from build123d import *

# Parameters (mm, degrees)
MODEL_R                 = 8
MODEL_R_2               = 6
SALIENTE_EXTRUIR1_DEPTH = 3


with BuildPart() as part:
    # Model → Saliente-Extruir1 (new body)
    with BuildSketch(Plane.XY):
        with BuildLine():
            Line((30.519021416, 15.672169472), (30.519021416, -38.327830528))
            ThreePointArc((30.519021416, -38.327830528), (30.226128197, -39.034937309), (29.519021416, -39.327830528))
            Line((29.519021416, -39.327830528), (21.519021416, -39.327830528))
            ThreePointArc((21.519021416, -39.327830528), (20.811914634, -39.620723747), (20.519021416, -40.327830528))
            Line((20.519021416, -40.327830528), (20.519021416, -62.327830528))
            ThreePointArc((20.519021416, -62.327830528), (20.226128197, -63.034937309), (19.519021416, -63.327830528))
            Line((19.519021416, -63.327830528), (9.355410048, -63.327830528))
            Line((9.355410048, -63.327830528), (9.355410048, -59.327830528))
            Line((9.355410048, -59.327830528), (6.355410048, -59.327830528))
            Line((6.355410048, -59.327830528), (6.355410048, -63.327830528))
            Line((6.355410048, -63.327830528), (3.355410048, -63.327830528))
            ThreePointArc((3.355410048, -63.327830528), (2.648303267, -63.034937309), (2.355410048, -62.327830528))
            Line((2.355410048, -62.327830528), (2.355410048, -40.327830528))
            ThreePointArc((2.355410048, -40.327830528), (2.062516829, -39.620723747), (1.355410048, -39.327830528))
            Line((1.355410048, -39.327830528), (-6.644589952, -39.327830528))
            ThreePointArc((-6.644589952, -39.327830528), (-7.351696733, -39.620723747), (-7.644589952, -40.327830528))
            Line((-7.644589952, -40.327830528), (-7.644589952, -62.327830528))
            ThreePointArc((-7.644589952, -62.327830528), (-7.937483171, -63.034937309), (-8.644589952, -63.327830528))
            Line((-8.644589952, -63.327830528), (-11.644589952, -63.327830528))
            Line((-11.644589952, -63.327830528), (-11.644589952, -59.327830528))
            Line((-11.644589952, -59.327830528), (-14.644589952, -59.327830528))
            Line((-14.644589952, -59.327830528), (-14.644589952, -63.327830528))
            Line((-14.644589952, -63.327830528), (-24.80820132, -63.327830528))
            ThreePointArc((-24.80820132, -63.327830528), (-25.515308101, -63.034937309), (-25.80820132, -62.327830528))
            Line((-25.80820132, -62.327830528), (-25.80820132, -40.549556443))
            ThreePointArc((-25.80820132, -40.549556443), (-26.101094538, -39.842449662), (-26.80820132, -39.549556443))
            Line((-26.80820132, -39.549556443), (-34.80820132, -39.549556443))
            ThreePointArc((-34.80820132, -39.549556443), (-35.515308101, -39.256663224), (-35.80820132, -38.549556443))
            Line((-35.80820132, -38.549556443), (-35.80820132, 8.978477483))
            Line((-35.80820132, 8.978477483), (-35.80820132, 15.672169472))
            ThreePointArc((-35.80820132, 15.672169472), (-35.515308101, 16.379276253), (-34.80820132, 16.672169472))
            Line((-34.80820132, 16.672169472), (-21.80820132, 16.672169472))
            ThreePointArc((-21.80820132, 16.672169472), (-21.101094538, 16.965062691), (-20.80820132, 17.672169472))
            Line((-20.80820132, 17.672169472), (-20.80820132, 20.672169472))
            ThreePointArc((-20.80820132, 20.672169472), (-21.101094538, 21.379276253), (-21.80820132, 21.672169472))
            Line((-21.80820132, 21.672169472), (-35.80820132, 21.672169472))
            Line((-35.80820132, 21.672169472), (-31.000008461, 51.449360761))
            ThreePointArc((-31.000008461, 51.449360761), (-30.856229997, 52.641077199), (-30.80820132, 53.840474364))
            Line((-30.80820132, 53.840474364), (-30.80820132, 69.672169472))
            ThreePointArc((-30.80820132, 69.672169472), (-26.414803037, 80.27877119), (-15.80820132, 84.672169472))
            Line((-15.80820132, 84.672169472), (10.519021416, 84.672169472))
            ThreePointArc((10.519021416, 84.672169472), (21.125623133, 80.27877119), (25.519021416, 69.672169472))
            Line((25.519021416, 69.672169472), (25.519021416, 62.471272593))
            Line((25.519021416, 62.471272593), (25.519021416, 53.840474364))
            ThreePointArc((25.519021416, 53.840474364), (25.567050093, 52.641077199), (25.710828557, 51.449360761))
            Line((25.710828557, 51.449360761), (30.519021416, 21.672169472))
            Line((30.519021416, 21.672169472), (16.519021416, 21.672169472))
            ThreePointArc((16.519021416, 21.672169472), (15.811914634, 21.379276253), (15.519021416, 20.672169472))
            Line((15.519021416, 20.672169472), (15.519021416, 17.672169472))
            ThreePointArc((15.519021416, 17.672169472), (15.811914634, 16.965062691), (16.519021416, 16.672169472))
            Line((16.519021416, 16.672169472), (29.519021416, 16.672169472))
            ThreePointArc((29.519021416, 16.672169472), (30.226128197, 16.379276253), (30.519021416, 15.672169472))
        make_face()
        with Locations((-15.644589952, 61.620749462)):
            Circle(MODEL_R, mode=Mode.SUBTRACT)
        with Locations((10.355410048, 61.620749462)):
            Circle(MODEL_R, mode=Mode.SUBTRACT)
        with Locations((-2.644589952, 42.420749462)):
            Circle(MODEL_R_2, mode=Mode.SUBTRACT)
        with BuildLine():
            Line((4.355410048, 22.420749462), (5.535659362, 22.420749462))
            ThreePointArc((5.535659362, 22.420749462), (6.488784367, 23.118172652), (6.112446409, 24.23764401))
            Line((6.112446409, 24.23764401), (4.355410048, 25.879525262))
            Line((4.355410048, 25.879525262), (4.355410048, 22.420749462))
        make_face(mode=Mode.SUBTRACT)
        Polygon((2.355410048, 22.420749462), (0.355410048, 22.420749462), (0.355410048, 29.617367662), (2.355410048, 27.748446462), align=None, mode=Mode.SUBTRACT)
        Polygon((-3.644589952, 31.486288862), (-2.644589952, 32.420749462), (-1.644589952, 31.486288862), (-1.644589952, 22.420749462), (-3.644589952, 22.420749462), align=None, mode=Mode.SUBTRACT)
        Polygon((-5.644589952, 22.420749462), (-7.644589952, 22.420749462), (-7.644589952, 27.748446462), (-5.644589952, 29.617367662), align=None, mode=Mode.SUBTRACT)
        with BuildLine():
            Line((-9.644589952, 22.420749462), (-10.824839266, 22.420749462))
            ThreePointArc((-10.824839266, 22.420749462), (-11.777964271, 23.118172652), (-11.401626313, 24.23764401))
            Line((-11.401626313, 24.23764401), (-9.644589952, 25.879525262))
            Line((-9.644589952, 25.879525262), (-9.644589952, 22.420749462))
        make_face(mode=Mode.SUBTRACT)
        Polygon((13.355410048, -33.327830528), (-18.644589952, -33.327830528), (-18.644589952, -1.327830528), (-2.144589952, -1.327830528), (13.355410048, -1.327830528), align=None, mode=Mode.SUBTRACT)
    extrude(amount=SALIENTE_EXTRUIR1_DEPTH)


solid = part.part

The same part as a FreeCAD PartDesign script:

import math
import FreeCAD as App
import Part
import Sketcher
from FreeCAD import Vector
Q = App.Units.Quantity


def add_polygon(sketch, points):
    """Adds a closed chain of lines whose ends are joined by coincident constraints."""
    first, n = sketch.GeometryCount, len(points)
    for a, b in zip(points, points[1:] + points[:1]):
        sketch.addGeometry(Part.LineSegment(App.Vector(*a, 0), App.Vector(*b, 0)), False)
    for i in range(n):
        sketch.addConstraint(Sketcher.Constraint("Coincident", first + i, 2, first + (i + 1) % n, 1))

doc = App.newDocument("Part")
body = doc.addObject("PartDesign::Body", "Body")

# Sketch on XY plane
sketch1 = body.newObject("Sketcher::SketchObject", "Sketch")
sketch1.AttachmentSupport = (doc.getObject("XY_Plane"), [""])
sketch1.MapMode = "FlatFace"
sketch1.addGeometry(Part.LineSegment(Vector(30.5, -38.3, 0), Vector(30.5, 15.7, 0)), False)  # 0
sketch1.addGeometry(Part.ArcOfCircle(Part.Circle(Vector(29.5, 15.7, 0), Vector(0, 0, 1), 1), math.radians(0), math.radians(90)), False)  # 1
sketch1.addGeometry(Part.LineSegment(Vector(29.5, 16.7, 0), Vector(16.5, 16.7, 0)), False)  # 2
sketch1.addGeometry(Part.ArcOfCircle(Part.Circle(Vector(16.5, 17.7, 0), Vector(0, 0, 1), 1), math.radians(180), math.radians(270)), False)  # 3
sketch1.addGeometry(Part.LineSegment(Vector(15.5, 17.7, 0), Vector(15.5, 20.7, 0)), False)  # 4
sketch1.addGeometry(Part.ArcOfCircle(Part.Circle(Vector(16.5, 20.7, 0), Vector(0, 0, 1), 1), math.radians(90), math.radians(180)), False)  # 5
sketch1.addGeometry(Part.LineSegment(Vector(16.5, 21.7, 0), Vector(30.5, 21.7, 0)), False)  # 6
sketch1.addGeometry(Part.LineSegment(Vector(30.5, 21.7, 0), Vector(25.7, 51.4, 0)), False)  # 7
sketch1.addGeometry(Part.ArcOfCircle(Part.Circle(Vector(40.5, 53.8, 0), Vector(0, 0, 1), 15), math.radians(180), math.radians(189.17)), False)  # 8
sketch1.addGeometry(Part.LineSegment(Vector(25.5, 53.8, 0), Vector(25.5, 69.7, 0)), False)  # 9
sketch1.addGeometry(Part.ArcOfCircle(Part.Circle(Vector(10.5, 69.7, 0), Vector(0, 0, 1), 15), math.radians(0), math.radians(90)), False)  # 10
sketch1.addGeometry(Part.LineSegment(Vector(10.5, 84.7, 0), Vector(-15.8, 84.7, 0)), False)  # 11
sketch1.addGeometry(Part.ArcOfCircle(Part.Circle(Vector(-15.8, 69.7, 0), Vector(0, 0, 1), 15), math.radians(90), math.radians(180)), False)  # 12
sketch1.addGeometry(Part.LineSegment(Vector(-30.8, 69.7, 0), Vector(-30.8, 53.8, 0)), False)  # 13
sketch1.addGeometry(Part.ArcOfCircle(Part.Circle(Vector(-45.8, 53.8, 0), Vector(0, 0, 1), 15), math.radians(-9.17), math.radians(0)), False)  # 14
sketch1.addGeometry(Part.LineSegment(Vector(-31, 51.4, 0), Vector(-35.8, 21.7, 0)), False)  # 15
sketch1.addGeometry(Part.LineSegment(Vector(-35.8, 21.7, 0), Vector(-21.8, 21.7, 0)), False)  # 16
sketch1.addGeometry(Part.ArcOfCircle(Part.Circle(Vector(-21.8, 20.7, 0), Vector(0, 0, 1), 1), math.radians(0), math.radians(90)), False)  # 17
sketch1.addGeometry(Part.LineSegment(Vector(-20.8, 20.7, 0), Vector(-20.8, 17.7, 0)), False)  # 18
sketch1.addGeometry(Part.ArcOfCircle(Part.Circle(Vector(-21.8, 17.7, 0), Vector(0, 0, 1), 1), math.radians(-90), math.radians(0)), False)  # 19
sketch1.addGeometry(Part.LineSegment(Vector(-21.8, 16.7, 0), Vector(-34.8, 16.7, 0)), False)  # 20
sketch1.addGeometry(Part.ArcOfCircle(Part.Circle(Vector(-34.8, 15.7, 0), Vector(0, 0, 1), 1), math.radians(90), math.radians(180)), False)  # 21
sketch1.addGeometry(Part.LineSegment(Vector(-35.8, 15.7, 0), Vector(-35.8, -38.5, 0)), False)  # 22
sketch1.addGeometry(Part.ArcOfCircle(Part.Circle(Vector(-34.8, -38.5, 0), Vector(0, 0, 1), 1), math.radians(-180), math.radians(-90)), False)  # 23
sketch1.addGeometry(Part.LineSegment(Vector(-34.8, -39.5, 0), Vector(-26.8, -39.5, 0)), False)  # 24
sketch1.addGeometry(Part.ArcOfCircle(Part.Circle(Vector(-26.8, -40.5, 0), Vector(0, 0, 1), 1), math.radians(0), math.radians(90)), False)  # 25
sketch1.addGeometry(Part.LineSegment(Vector(-25.8, -40.5, 0), Vector(-25.8, -62.3, 0)), False)  # 26
sketch1.addGeometry(Part.ArcOfCircle(Part.Circle(Vector(-24.8, -62.3, 0), Vector(0, 0, 1), 1), math.radians(-180), math.radians(-90)), False)  # 27
sketch1.addGeometry(Part.LineSegment(Vector(-24.8, -63.3, 0), Vector(-14.6, -63.3, 0)), False)  # 28
sketch1.addGeometry(Part.LineSegment(Vector(-14.6, -63.3, 0), Vector(-14.6, -59.3, 0)), False)  # 29
sketch1.addGeometry(Part.LineSegment(Vector(-14.6, -59.3, 0), Vector(-11.6, -59.3, 0)), False)  # 30
sketch1.addGeometry(Part.LineSegment(Vector(-11.6, -59.3, 0), Vector(-11.6, -63.3, 0)), False)  # 31
sketch1.addGeometry(Part.LineSegment(Vector(-11.6, -63.3, 0), Vector(-8.6, -63.3, 0)), False)  # 32
sketch1.addGeometry(Part.ArcOfCircle(Part.Circle(Vector(-8.6, -62.3, 0), Vector(0, 0, 1), 1), math.radians(-90), math.radians(0)), False)  # 33
sketch1.addGeometry(Part.LineSegment(Vector(-7.6, -62.3, 0), Vector(-7.6, -40.3, 0)), False)  # 34
sketch1.addGeometry(Part.ArcOfCircle(Part.Circle(Vector(-6.6, -40.3, 0), Vector(0, 0, 1), 1), math.radians(90), math.radians(180)), False)  # 35
sketch1.addGeometry(Part.LineSegment(Vector(-6.6, -39.3, 0), Vector(1.4, -39.3, 0)), False)  # 36
sketch1.addGeometry(Part.ArcOfCircle(Part.Circle(Vector(1.4, -40.3, 0), Vector(0, 0, 1), 1), math.radians(0), math.radians(90)), False)  # 37
sketch1.addGeometry(Part.LineSegment(Vector(2.4, -40.3, 0), Vector(2.4, -62.3, 0)), False)  # 38
sketch1.addGeometry(Part.ArcOfCircle(Part.Circle(Vector(3.4, -62.3, 0), Vector(0, 0, 1), 1), math.radians(-180), math.radians(-90)), False)  # 39
sketch1.addGeometry(Part.LineSegment(Vector(3.4, -63.3, 0), Vector(6.4, -63.3, 0)), False)  # 40
sketch1.addGeometry(Part.LineSegment(Vector(6.4, -63.3, 0), Vector(6.4, -59.3, 0)), False)  # 41
sketch1.addGeometry(Part.LineSegment(Vector(6.4, -59.3, 0), Vector(9.4, -59.3, 0)), False)  # 42
sketch1.addGeometry(Part.LineSegment(Vector(9.4, -59.3, 0), Vector(9.4, -63.3, 0)), False)  # 43
sketch1.addGeometry(Part.LineSegment(Vector(9.4, -63.3, 0), Vector(19.5, -63.3, 0)), False)  # 44
sketch1.addGeometry(Part.ArcOfCircle(Part.Circle(Vector(19.5, -62.3, 0), Vector(0, 0, 1), 1), math.radians(-90), math.radians(0)), False)  # 45
sketch1.addGeometry(Part.LineSegment(Vector(20.5, -62.3, 0), Vector(20.5, -40.3, 0)), False)  # 46
sketch1.addGeometry(Part.ArcOfCircle(Part.Circle(Vector(21.5, -40.3, 0), Vector(0, 0, 1), 1), math.radians(90), math.radians(180)), False)  # 47
sketch1.addGeometry(Part.LineSegment(Vector(21.5, -39.3, 0), Vector(29.5, -39.3, 0)), False)  # 48
sketch1.addGeometry(Part.ArcOfCircle(Part.Circle(Vector(29.5, -38.3, 0), Vector(0, 0, 1), 1), math.radians(-90), math.radians(0)), False)  # 49
add_polygon(sketch1, [(13.4, -33.3), (-18.6, -33.3), (-18.6, -1.3), (13.4, -1.3)])  # lines 50-53
sketch1.addGeometry(Part.LineSegment(Vector(4.4, 22.4, 0), Vector(4.4, 25.9, 0)), False)  # 54
sketch1.addGeometry(Part.LineSegment(Vector(4.4, 25.9, 0), Vector(6.1, 24.2, 0)), False)  # 55
sketch1.addGeometry(Part.ArcOfCircle(Part.Circle(Vector(5.5, 23.4, 0), Vector(0, 0, 1), 1), math.radians(-90), math.radians(55)), False)  # 56
sketch1.addGeometry(Part.LineSegment(Vector(5.5, 22.4, 0), Vector(4.4, 22.4, 0)), False)  # 57
add_polygon(sketch1, [(2.4, 22.4), (0.4, 22.4), (0.4, 29.6), (2.4, 27.7)])  # lines 58-61
sketch1.addGeometry(Part.Circle(Vector(10.4, 61.6, 0), Vector(0, 0, 1), 8), False)  # 62
add_polygon(sketch1, [(-3.6, 31.5), (-2.6, 32.4), (-1.6, 31.5), (-1.6, 22.4), (-3.6, 22.4)])  # lines 63-67
add_polygon(sketch1, [(-5.6, 22.4), (-7.6, 22.4), (-7.6, 27.7), (-5.6, 29.6)])  # lines 68-71
sketch1.addGeometry(Part.LineSegment(Vector(-9.6, 22.4, 0), Vector(-10.8, 22.4, 0)), False)  # 72
sketch1.addGeometry(Part.ArcOfCircle(Part.Circle(Vector(-10.8, 23.4, 0), Vector(0, 0, 1), 1), math.radians(125), math.radians(270)), False)  # 73
sketch1.addGeometry(Part.LineSegment(Vector(-11.4, 24.2, 0), Vector(-9.6, 25.9, 0)), False)  # 74
sketch1.addGeometry(Part.LineSegment(Vector(-9.6, 25.9, 0), Vector(-9.6, 22.4, 0)), False)  # 75
sketch1.addGeometry(Part.Circle(Vector(-2.6, 42.4, 0), Vector(0, 0, 1), 6), False)  # 76
sketch1.addGeometry(Part.Circle(Vector(-15.6, 61.6, 0), Vector(0, 0, 1), 8), False)  # 77
sketch1.addConstraint([
    Sketcher.Constraint("Tangent", 0, 2, 1, 1),
    Sketcher.Constraint("Tangent", 1, 2, 2, 1),
    Sketcher.Constraint("Tangent", 2, 2, 3, 2),
    Sketcher.Constraint("Tangent", 3, 1, 4, 1),
    Sketcher.Constraint("Tangent", 4, 2, 5, 2),
    Sketcher.Constraint("Tangent", 5, 1, 6, 1),
    Sketcher.Constraint("Coincident", 6, 2, 7, 1),
    Sketcher.Constraint("Tangent", 7, 2, 8, 2),
    Sketcher.Constraint("Tangent", 8, 1, 9, 1),
    Sketcher.Constraint("Tangent", 9, 2, 10, 1),
    Sketcher.Constraint("Tangent", 10, 2, 11, 1),
    Sketcher.Constraint("Tangent", 11, 2, 12, 1),
    Sketcher.Constraint("Tangent", 12, 2, 13, 1),
    Sketcher.Constraint("Tangent", 13, 2, 14, 2),
    Sketcher.Constraint("Tangent", 14, 1, 15, 1),
    Sketcher.Constraint("Coincident", 15, 2, 16, 1),
    Sketcher.Constraint("Tangent", 16, 2, 17, 2),
    Sketcher.Constraint("Tangent", 17, 1, 18, 1),
    Sketcher.Constraint("Tangent", 18, 2, 19, 2),
    Sketcher.Constraint("Tangent", 19, 1, 20, 1),
    Sketcher.Constraint("Tangent", 20, 2, 21, 1),
    Sketcher.Constraint("Tangent", 21, 2, 22, 1),
    Sketcher.Constraint("Tangent", 22, 2, 23, 1),
    Sketcher.Constraint("Tangent", 23, 2, 24, 1),
    Sketcher.Constraint("Tangent", 24, 2, 25, 2),
    Sketcher.Constraint("Tangent", 25, 1, 26, 1),
    Sketcher.Constraint("Tangent", 26, 2, 27, 1),
    Sketcher.Constraint("Tangent", 27, 2, 28, 1),
    Sketcher.Constraint("Coincident", 28, 2, 29, 1),
    Sketcher.Constraint("Coincident", 29, 2, 30, 1),
    Sketcher.Constraint("Coincident", 30, 2, 31, 1),
    Sketcher.Constraint("Coincident", 31, 2, 32, 1),
    Sketcher.Constraint("Tangent", 32, 2, 33, 1),
    Sketcher.Constraint("Tangent", 33, 2, 34, 1),
    Sketcher.Constraint("Tangent", 34, 2, 35, 2),
    Sketcher.Constraint("Tangent", 35, 1, 36, 1),
    Sketcher.Constraint("Tangent", 36, 2, 37, 2),
    Sketcher.Constraint("Tangent", 37, 1, 38, 1),
    Sketcher.Constraint("Tangent", 38, 2, 39, 1),
    Sketcher.Constraint("Tangent", 39, 2, 40, 1),
    Sketcher.Constraint("Coincident", 40, 2, 41, 1),
    Sketcher.Constraint("Coincident", 41, 2, 42, 1),
    Sketcher.Constraint("Coincident", 42, 2, 43, 1),
    Sketcher.Constraint("Coincident", 43, 2, 44, 1),
    Sketcher.Constraint("Tangent", 44, 2, 45, 1),
    Sketcher.Constraint("Tangent", 45, 2, 46, 1),
    Sketcher.Constraint("Tangent", 46, 2, 47, 2),
    Sketcher.Constraint("Tangent", 47, 1, 48, 1),
    Sketcher.Constraint("Tangent", 48, 2, 49, 1),
    Sketcher.Constraint("Tangent", 49, 2, 0, 1),
    Sketcher.Constraint("Coincident", 54, 2, 55, 1),
    Sketcher.Constraint("Coincident", 55, 2, 56, 2),
    Sketcher.Constraint("Tangent", 56, 1, 57, 1),
    Sketcher.Constraint("Coincident", 57, 2, 54, 1),
    Sketcher.Constraint("Tangent", 72, 2, 73, 2),
    Sketcher.Constraint("Coincident", 73, 1, 74, 1),
    Sketcher.Constraint("Coincident", 74, 2, 75, 1),
    Sketcher.Constraint("Coincident", 75, 2, 72, 1),
    Sketcher.Constraint("Vertical", 0),
    Sketcher.Constraint("Horizontal", 2),
    Sketcher.Constraint("Vertical", 4),
    Sketcher.Constraint("Horizontal", 6),
    Sketcher.Constraint("Vertical", 9),
    Sketcher.Constraint("Horizontal", 11),
    Sketcher.Constraint("Vertical", 13),
    Sketcher.Constraint("Horizontal", 16),
    Sketcher.Constraint("Vertical", 18),
    Sketcher.Constraint("Horizontal", 20),
    Sketcher.Constraint("Vertical", 22),
    Sketcher.Constraint("Horizontal", 24),
    Sketcher.Constraint("Vertical", 26),
    Sketcher.Constraint("Horizontal", 28),
    Sketcher.Constraint("Vertical", 29),
    Sketcher.Constraint("Horizontal", 30),
    Sketcher.Constraint("Vertical", 31),
    Sketcher.Constraint("Horizontal", 32),
    Sketcher.Constraint("Vertical", 34),
    Sketcher.Constraint("Horizontal", 36),
    Sketcher.Constraint("Vertical", 38),
    Sketcher.Constraint("Horizontal", 40),
    Sketcher.Constraint("Vertical", 41),
    Sketcher.Constraint("Horizontal", 42),
    Sketcher.Constraint("Vertical", 43),
    Sketcher.Constraint("Horizontal", 44),
    Sketcher.Constraint("Vertical", 46),
    Sketcher.Constraint("Horizontal", 48),
    Sketcher.Constraint("Horizontal", 50),
    Sketcher.Constraint("Vertical", 51),
    Sketcher.Constraint("Horizontal", 52),
    Sketcher.Constraint("Vertical", 53),
    Sketcher.Constraint("Vertical", 54),
    Sketcher.Constraint("Horizontal", 57),
    Sketcher.Constraint("Horizontal", 58),
    Sketcher.Constraint("Vertical", 59),
    Sketcher.Constraint("Vertical", 61),
    Sketcher.Constraint("Vertical", 65),
    Sketcher.Constraint("Horizontal", 66),
    Sketcher.Constraint("Vertical", 67),
    Sketcher.Constraint("Horizontal", 68),
    Sketcher.Constraint("Vertical", 69),
    Sketcher.Constraint("Vertical", 71),
    Sketcher.Constraint("Horizontal", 72),
    Sketcher.Constraint("Vertical", 75),
    Sketcher.Constraint("Equal", 1, 3),
    Sketcher.Constraint("Equal", 3, 5),
    Sketcher.Constraint("Equal", 8, 10),
    Sketcher.Constraint("Equal", 10, 12),
    Sketcher.Constraint("Equal", 12, 14),
    Sketcher.Constraint("Equal", 5, 17),
    Sketcher.Constraint("Equal", 17, 19),
    Sketcher.Constraint("Equal", 19, 21),
    Sketcher.Constraint("Equal", 21, 23),
    Sketcher.Constraint("Equal", 23, 25),
    Sketcher.Constraint("Equal", 25, 27),
    Sketcher.Constraint("Equal", 27, 33),
    Sketcher.Constraint("Equal", 33, 35),
    Sketcher.Constraint("Equal", 35, 37),
    Sketcher.Constraint("Equal", 37, 39),
    Sketcher.Constraint("Equal", 39, 45),
    Sketcher.Constraint("Equal", 45, 47),
    Sketcher.Constraint("Equal", 47, 49),
    Sketcher.Constraint("Equal", 49, 56),
    Sketcher.Constraint("Equal", 56, 73),
    Sketcher.Constraint("Equal", 62, 77),
    Sketcher.Constraint("Parallel", 55, 60),
    Sketcher.Constraint("Parallel", 60, 64),
    Sketcher.Constraint("Parallel", 63, 70),
    Sketcher.Constraint("Parallel", 70, 74),
    Sketcher.Constraint("Horizontal", 8, 3, 14, 3),
    Sketcher.Constraint("Horizontal", 5, 3, 17, 3),
    Sketcher.Constraint("Horizontal", 3, 3, 19, 3),
    Sketcher.Constraint("Horizontal", 27, 3, 33, 3),
    Sketcher.Constraint("Horizontal", 33, 3, 39, 3),
    Sketcher.Constraint("Horizontal", 39, 3, 45, 3),
    Sketcher.Constraint("Horizontal", 37, 3, 47, 3),
    Sketcher.Constraint("Horizontal", 56, 3, 73, 3),
    Sketcher.Constraint("Horizontal", 62, 3, 77, 3),
    Sketcher.Constraint("Horizontal", 7, 2, 14, 1),
    Sketcher.Constraint("Horizontal", 30, 2, 41, 2),
    Sketcher.Constraint("Horizontal", 57, 2, 58, 2),
    Sketcher.Constraint("Horizontal", 61, 2, 65, 2),
    Sketcher.Constraint("Horizontal", 64, 2, 67, 2),
    Sketcher.Constraint("Horizontal", 66, 2, 68, 2),
    Sketcher.Constraint("Horizontal", 60, 2, 69, 2),
    Sketcher.Constraint("Horizontal", 59, 2, 70, 2),
    Sketcher.Constraint("Horizontal", 55, 2, 73, 1),
    Sketcher.Constraint("Horizontal", 54, 2, 74, 2),
    Sketcher.Constraint("Vertical", 0, 2, 6, 2),
    Sketcher.Constraint("Vertical", 15, 2, 21, 2),
    Sketcher.Constraint("Vertical", 38, 2, 60, 2),
    Sketcher.Constraint("Vertical", 76, 3, 63, 2),
    Sketcher.Constraint("Vertical", 34, 2, 68, 2),
    Sketcher.Constraint("Equal", 6, 16),
    Sketcher.Constraint("Equal", 30, 32),
    Sketcher.Constraint("Equal", 24, 36),
    Sketcher.Constraint("Equal", 32, 40),
    Sketcher.Constraint("Equal", 40, 42),
    Sketcher.Constraint("Equal", 28, 44),
    Sketcher.Constraint("Equal", 36, 48),
    Sketcher.Constraint("Equal", 58, 66),
    Sketcher.Constraint("Equal", 66, 68),
    Sketcher.Constraint("Equal", 42, 4),
    Sketcher.Constraint("Equal", 52, 51),
    Sketcher.Constraint("Diameter", 62, Q("16 mm")),
    Sketcher.Constraint("Diameter", 76, Q("12 mm")),
    Sketcher.Constraint("Radius", 1, Q("1 mm")),
    Sketcher.Constraint("Radius", 8, Q("15 mm")),
    Sketcher.Constraint("DistanceX", 2, 2, 2, 1, Q("13 mm")),
    Sketcher.Constraint("DistanceX", 24, 1, 24, 2, Q("8 mm")),
    Sketcher.Constraint("DistanceX", 30, 1, 30, 2, Q("3 mm")),
    Sketcher.Constraint("DistanceX", 50, 2, 50, 1, Q("32 mm")),
    Sketcher.Constraint("DistanceX", 58, 2, 58, 1, Q("2 mm")),
    Sketcher.Constraint("DistanceY", 0, 1, 0, 2, Q("54 mm")),
    Sketcher.Constraint("DistanceY", 29, 1, 29, 2, Q("4 mm")),
    Sketcher.Constraint("DistanceY", 34, 1, 34, 2, Q("22 mm")),
    Sketcher.Constraint("DistanceX", 28, 1, 28, 2, Q("10.163611 mm")),
    Sketcher.Constraint("DistanceX", 57, 2, 57, 1, Q("1.180249 mm")),
    Sketcher.Constraint("DistanceY", 59, 1, 59, 2, Q("7.196618 mm")),
    Sketcher.Constraint("DistanceY", 65, 2, 65, 1, Q("9.065539 mm")),
    Sketcher.Constraint("DistanceX", 12, 3, -1, 1, Q("15.808201 mm")),
    Sketcher.Constraint("DistanceX", 17, 3, -1, 1, Q("21.808201 mm")),
    Sketcher.Constraint("Distance", 7, Q("30.162888 mm")),
    Sketcher.Constraint("Distance", 60, Q("2.73731 mm")),
    Sketcher.Constraint("DistanceY", 9, 1, 9, 2, Q("15.831695 mm")),
    Sketcher.Constraint("DistanceY", 22, 2, 22, 1, Q("54.221726 mm")),
    Sketcher.Constraint("DistanceY", 54, 1, 54, 2, Q("3.458776 mm")),
    Sketcher.Constraint("DistanceY", -1, 1, 1, 3, Q("15.672169 mm")),
    Sketcher.Constraint("DistanceX", -1, 1, 56, 3, Q("5.535659 mm")),
    Sketcher.Constraint("DistanceY", -1, 1, 56, 3, Q("23.420749 mm")),
    Sketcher.Constraint("DistanceX", -1, 1, 62, 3, Q("10.35541 mm")),
    Sketcher.Constraint("DistanceY", -1, 1, 62, 3, Q("61.620749 mm")),
    Sketcher.Constraint("DistanceX", 73, 3, -1, 1, Q("10.824839 mm")),
    Sketcher.Constraint("DistanceX", 76, 3, -1, 1, Q("2.64459 mm")),
    Sketcher.Constraint("DistanceY", -1, 1, 76, 3, Q("42.420749 mm")),
    Sketcher.Constraint("DistanceX", 77, 3, -1, 1, Q("15.64459 mm")),
    Sketcher.Constraint("DistanceX", 50, 2, -1, 1, Q("18.64459 mm")),
    Sketcher.Constraint("DistanceY", 50, 2, -1, 1, Q("33.327831 mm")),
])
pad1 = body.newObject("PartDesign::Pad", "Pad")
pad1.Profile = sketch1
pad1.Length = 3

doc.recompute()
